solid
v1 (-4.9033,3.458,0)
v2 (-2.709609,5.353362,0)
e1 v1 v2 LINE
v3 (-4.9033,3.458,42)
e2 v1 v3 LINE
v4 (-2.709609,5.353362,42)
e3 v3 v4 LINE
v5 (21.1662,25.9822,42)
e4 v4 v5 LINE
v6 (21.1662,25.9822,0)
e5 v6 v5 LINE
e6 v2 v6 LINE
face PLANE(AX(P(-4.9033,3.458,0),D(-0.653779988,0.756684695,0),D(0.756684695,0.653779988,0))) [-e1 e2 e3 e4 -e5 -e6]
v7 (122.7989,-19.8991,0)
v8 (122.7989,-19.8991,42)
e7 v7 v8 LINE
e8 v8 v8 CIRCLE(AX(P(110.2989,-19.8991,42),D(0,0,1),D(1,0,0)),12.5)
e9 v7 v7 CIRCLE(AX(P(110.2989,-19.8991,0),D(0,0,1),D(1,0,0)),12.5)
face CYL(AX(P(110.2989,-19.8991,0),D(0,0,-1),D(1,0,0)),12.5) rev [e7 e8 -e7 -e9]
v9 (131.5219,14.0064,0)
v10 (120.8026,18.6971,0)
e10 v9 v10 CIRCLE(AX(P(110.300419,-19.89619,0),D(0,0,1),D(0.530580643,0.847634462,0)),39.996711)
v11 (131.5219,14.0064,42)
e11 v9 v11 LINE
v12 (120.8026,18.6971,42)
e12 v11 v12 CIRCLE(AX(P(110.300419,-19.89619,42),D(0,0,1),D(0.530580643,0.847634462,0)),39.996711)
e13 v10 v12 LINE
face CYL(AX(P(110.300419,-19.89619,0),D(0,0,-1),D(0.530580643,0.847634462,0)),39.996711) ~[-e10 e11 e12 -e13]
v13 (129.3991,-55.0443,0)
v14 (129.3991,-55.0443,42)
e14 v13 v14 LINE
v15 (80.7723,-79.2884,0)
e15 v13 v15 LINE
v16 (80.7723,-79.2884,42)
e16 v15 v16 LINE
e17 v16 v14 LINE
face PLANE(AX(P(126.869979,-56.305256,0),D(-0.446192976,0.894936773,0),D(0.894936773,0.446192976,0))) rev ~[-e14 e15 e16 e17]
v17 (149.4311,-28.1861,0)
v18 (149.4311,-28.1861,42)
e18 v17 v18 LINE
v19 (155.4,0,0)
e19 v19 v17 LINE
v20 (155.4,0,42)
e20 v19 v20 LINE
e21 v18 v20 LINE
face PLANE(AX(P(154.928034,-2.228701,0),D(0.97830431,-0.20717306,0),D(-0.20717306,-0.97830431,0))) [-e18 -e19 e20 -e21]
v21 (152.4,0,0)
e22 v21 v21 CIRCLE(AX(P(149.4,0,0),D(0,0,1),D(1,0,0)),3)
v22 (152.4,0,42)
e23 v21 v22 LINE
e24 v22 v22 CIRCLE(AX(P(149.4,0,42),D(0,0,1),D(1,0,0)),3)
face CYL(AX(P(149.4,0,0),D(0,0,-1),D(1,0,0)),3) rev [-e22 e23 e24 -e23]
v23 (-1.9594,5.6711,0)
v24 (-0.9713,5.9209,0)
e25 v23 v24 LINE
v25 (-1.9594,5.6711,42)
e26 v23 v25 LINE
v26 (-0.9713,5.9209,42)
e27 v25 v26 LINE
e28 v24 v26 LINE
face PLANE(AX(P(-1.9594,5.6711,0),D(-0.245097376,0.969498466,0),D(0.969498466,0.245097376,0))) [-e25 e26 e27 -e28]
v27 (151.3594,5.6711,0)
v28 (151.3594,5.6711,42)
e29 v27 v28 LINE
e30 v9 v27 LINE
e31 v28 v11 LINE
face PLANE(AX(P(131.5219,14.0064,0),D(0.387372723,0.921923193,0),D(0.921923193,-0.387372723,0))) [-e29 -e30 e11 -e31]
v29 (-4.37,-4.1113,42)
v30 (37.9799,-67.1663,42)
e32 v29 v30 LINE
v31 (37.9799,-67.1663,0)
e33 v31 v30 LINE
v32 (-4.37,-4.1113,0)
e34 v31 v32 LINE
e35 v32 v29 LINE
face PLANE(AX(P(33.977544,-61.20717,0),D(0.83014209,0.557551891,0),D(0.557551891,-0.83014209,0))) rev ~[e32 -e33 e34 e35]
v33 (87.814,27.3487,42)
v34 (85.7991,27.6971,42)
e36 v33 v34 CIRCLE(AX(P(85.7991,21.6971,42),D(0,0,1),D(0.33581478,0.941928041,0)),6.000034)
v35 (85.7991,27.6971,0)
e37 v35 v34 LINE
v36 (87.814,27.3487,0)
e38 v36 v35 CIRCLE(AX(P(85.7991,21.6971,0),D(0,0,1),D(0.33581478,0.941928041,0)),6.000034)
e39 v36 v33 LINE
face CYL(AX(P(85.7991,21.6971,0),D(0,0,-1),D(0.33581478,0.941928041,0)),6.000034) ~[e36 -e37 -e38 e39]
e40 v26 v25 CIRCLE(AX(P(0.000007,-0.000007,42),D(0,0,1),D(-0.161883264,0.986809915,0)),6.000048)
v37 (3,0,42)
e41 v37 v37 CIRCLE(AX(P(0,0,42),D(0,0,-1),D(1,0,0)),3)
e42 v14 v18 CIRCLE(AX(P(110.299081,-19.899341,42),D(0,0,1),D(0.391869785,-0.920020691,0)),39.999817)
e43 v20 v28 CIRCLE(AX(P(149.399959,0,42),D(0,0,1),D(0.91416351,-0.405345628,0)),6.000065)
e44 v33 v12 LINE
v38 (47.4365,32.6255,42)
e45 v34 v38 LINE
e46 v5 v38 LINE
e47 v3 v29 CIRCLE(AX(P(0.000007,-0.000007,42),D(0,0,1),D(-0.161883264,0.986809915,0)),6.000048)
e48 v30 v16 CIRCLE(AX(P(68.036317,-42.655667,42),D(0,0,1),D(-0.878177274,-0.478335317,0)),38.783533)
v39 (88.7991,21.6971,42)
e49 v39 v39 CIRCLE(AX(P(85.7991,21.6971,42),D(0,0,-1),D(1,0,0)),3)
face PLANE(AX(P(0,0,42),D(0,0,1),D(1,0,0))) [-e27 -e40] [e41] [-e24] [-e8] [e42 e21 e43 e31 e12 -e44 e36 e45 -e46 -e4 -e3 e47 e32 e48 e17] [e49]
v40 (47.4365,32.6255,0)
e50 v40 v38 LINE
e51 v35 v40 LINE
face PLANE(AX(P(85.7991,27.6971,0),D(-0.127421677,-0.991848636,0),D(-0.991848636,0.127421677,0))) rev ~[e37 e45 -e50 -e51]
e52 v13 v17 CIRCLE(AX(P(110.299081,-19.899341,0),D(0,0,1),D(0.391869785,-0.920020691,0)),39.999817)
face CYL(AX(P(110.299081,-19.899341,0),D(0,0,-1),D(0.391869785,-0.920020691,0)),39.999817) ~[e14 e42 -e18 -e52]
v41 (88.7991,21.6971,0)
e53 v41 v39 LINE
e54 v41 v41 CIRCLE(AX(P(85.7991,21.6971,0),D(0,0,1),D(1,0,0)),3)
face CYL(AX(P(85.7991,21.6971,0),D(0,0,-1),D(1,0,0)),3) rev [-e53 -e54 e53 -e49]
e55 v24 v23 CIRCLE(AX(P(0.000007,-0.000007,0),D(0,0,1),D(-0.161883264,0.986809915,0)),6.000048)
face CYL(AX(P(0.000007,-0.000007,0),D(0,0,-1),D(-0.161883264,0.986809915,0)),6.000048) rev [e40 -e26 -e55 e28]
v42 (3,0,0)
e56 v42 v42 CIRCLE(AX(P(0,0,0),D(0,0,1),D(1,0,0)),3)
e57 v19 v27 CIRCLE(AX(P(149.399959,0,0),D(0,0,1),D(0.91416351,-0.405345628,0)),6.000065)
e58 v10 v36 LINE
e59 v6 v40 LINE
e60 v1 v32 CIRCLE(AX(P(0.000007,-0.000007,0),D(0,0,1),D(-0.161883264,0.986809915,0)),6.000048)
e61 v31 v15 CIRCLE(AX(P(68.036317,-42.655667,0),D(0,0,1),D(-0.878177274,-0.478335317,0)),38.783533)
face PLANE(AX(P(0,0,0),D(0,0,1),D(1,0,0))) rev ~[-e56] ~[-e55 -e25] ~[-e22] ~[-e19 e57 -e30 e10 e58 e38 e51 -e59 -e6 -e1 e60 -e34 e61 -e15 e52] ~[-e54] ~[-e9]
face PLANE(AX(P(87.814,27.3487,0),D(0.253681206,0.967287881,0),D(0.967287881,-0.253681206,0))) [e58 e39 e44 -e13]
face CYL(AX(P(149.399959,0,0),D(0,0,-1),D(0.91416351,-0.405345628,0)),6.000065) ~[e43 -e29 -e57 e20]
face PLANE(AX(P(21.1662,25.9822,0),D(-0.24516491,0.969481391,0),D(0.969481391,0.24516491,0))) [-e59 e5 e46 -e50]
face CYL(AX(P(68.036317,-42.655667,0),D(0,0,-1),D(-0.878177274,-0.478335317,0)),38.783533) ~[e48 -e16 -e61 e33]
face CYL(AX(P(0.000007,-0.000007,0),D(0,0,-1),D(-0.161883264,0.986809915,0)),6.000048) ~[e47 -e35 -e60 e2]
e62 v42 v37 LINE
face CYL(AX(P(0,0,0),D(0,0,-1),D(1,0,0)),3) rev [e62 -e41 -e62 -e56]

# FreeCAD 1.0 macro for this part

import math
import FreeCAD as App
import Part
import Sketcher
Q = App.Units.Quantity

doc = App.newDocument("Part")
params = doc.addObject("Spreadsheet::Sheet", "Params")
for row, (alias, value) in enumerate([
    ("sketch1_diameter", "6 mm"),
    ("sketch1_diameter2", "25 mm"),
    ("sketch1_diameter3", "6 mm"),
    ("sketch1_diameter4", "6 mm"),
    ("sketch1_radius", "6 mm"),
    ("pad1_length", "42 mm"),
], start=1):
    params.set(f"A{row}", alias)
    params.set(f"B{row}", "=" + value)
    params.setAlias(f"B{row}", alias)

body = doc.addObject("PartDesign::Body", "Body")

# Sketch on XY plane
sketch1 = body.newObject("Sketcher::SketchObject", "Sketch")
sketch1.AttachmentSupport = (doc.getObject("XY_Plane"), [""])
sketch1.MapMode = "FlatFace"
sketch1.addGeometry([
    Part.ArcOfCircle(Part.Circle(App.Vector(85.7991, 21.6971, 0), App.Vector(0, 0, 1), 6.000034), math.radians(70.377908), math.radians(90)),  # 0
    Part.LineSegment(App.Vector(85.7991, 27.6971, 0), App.Vector(47.4365, 32.6255, 0)),  # 1
    Part.LineSegment(App.Vector(47.4365, 32.6255, 0), App.Vector(21.1662, 25.9822, 0)),  # 2
    Part.LineSegment(App.Vector(21.1662, 25.9822, 0), App.Vector(-2.709609, 5.353362, 0)),  # 3
    Part.LineSegment(App.Vector(-2.709609, 5.353362, 0), App.Vector(-4.9033, 3.458, 0)),  # 4
    Part.ArcOfCircle(Part.Circle(App.Vector(0, 0, 0), App.Vector(0, 0, 1), 6.00004), math.radians(144.807005), math.radians(223.252883)),  # 5
    Part.LineSegment(App.Vector(-4.37, -4.1113, 0), App.Vector(37.9799, -67.1663, 0)),  # 6
    Part.ArcOfCircle(Part.Circle(App.Vector(68.0362, -42.6558, 0), App.Vector(0, 0, 1), 38.783366), math.radians(-140.803229), math.radians(-70.828909)),  # 7
    Part.LineSegment(App.Vector(80.7723, -79.2884, 0), App.Vector(129.3991, -55.0443, 0)),  # 8
    Part.ArcOfCircle(Part.Circle(App.Vector(110.2989, -19.8991, 0), App.Vector(0, 0, 1), 39.999983), math.radians(-61.47745), math.radians(-11.956838)),  # 9
    Part.LineSegment(App.Vector(149.4311, -28.1861, 0), App.Vector(155.4, 0, 0)),  # 10
    Part.ArcOfCircle(Part.Circle(App.Vector(149.4, 0, 0), App.Vector(0, 0, 1), 6.000028), math.radians(0), math.radians(70.939653)),  # 11
    Part.LineSegment(App.Vector(151.3594, 5.6711, 0), App.Vector(131.5219, 14.0064, 0)),  # 12
    Part.ArcOfCircle(Part.Circle(App.Vector(110.300419, -19.89619, 0), App.Vector(0, 0, 1), 39.996711), math.radians(57.955305), math.radians(74.777031)),  # 13
    Part.LineSegment(App.Vector(120.8026, 18.6971, 0), App.Vector(87.814, 27.3487, 0)),  # 14
    Part.Circle(App.Vector(0, 0, 0), App.Vector(0, 0, 1), 3),  # 15
    Part.LineSegment(App.Vector(-0.9713, 5.9209, 0), App.Vector(-1.9594, 5.6711, 0)),  # 16
    Part.ArcOfCircle(Part.Circle(App.Vector(0, 0, 0), App.Vector(0, 0, 1), 6.00004), math.radians(99.316166), math.radians(109.060347)),  # 17
    Part.Circle(App.Vector(110.2989, -19.8991, 0), App.Vector(0, 0, 1), 12.5),  # 18
    Part.Circle(App.Vector(149.4, 0, 0), App.Vector(0, 0, 1), 3),  # 19
    Part.Circle(App.Vector(85.7991, 21.6971, 0), App.Vector(0, 0, 1), 3),  # 20
], False)
sketch1.addConstraint([
    Sketcher.Constraint("Coincident", 0, 2, 1, 1),
    Sketcher.Constraint("Coincident", 1, 2, 2, 1),
    Sketcher.Constraint("Coincident", 2, 2, 3, 1),
    Sketcher.Constraint("Coincident", 3, 2, 4, 1),
    Sketcher.Constraint("Coincident", 4, 2, 5, 1),
    Sketcher.Constraint("Coincident", 5, 2, 6, 1),
    Sketcher.Constraint("Coincident", 6, 2, 7, 1),
    Sketcher.Constraint("Coincident", 7, 2, 8, 1),
    Sketcher.Constraint("Coincident", 8, 2, 9, 1),
    Sketcher.Constraint("Coincident", 9, 2, 10, 1),
    Sketcher.Constraint("Coincident", 10, 2, 11, 1),
    Sketcher.Constraint("Coincident", 11, 2, 12, 1),
    Sketcher.Constraint("Coincident", 12, 2, 13, 1),
    Sketcher.Constraint("Coincident", 13, 2, 14, 1),
    Sketcher.Constraint("Coincident", 14, 2, 0, 1),
    Sketcher.Constraint("Coincident", 16, 1, 17, 1),
    Sketcher.Constraint("Coincident", 17, 2, 16, 2),
    Sketcher.Constraint("Coincident", 5, 3, -1, 1),
    Sketcher.Constraint("Coincident", 15, 3, -1, 1),
    Sketcher.Constraint("Coincident", 17, 3, -1, 1),
    Sketcher.Constraint("Coincident", 18, 3, 9, 3),
    Sketcher.Constraint("Coincident", 19, 3, 11, 3),
    Sketcher.Constraint("Coincident", 20, 3, 0, 3),
    Sketcher.Constraint("PointOnObject", 11, 3, -1),
    Sketcher.Constraint("PointOnObject", 10, 2, -1),
    Sketcher.Constraint("Diameter", 15, Q("6 mm")),
    Sketcher.Constraint("Diameter", 18, Q("25 mm")),
    Sketcher.Constraint("Diameter", 19, Q("6 mm")),
    Sketcher.Constraint("Diameter", 20, Q("6 mm")),
    Sketcher.Constraint("Radius", 0, Q("6 mm")),
    Sketcher.Constraint("Radius", 5, Q("6 mm")),
    Sketcher.Constraint("Radius", 11, Q("6 mm")),
    Sketcher.Constraint("Radius", 17, Q("6 mm")),
    Sketcher.Constraint("Radius", 9, Q("40 mm")),
    Sketcher.Constraint("DistanceY", 13, 2, 0, 3, Q("3 mm")),
    Sketcher.Constraint("DistanceX", -1, 1, 11, 3, Q("149.4 mm")),
    Sketcher.Constraint("Radius", 7, Q("38.7834 mm")),
    Sketcher.Constraint("Radius", 13, Q("39.9967 mm")),
    Sketcher.Constraint("DistanceX", 5, 2, -1, 1, Q("4.37 mm")),
    Sketcher.Constraint("DistanceX", -1, 1, 6, 2, Q("37.98 mm")),
    Sketcher.Constraint("DistanceY", 9, 2, 13, 3, Q("8.29 mm")),
    Sketcher.Constraint("Distance", 4, Q("2.899 mm")),
    Sketcher.Constraint("DistanceX", -1, 1, 0, 3, Q("85.799 mm")),
    Sketcher.Constraint("DistanceY", -1, 1, 0, 3, Q("21.697 mm")),
    Sketcher.Constraint("DistanceX", -1, 1, 9, 3, Q("110.299 mm")),
    Sketcher.Constraint("DistanceY", 9, 3, -1, 1, Q("19.899 mm")),
    Sketcher.Constraint("DistanceX", -1, 1, 0, 2, Q("85.799 mm")),
    Sketcher.Constraint("DistanceY", -1, 1, 4, 2, Q("3.458 mm")),
    Sketcher.Constraint("DistanceX", -1, 1, 8, 2, Q("129.399 mm")),
    Sketcher.Constraint("DistanceX", -1, 1, 9, 2, Q("149.431 mm")),
    Sketcher.Constraint("DistanceY", -1, 1, 11, 2, Q("5.671 mm")),
    Sketcher.Constraint("DistanceX", -1, 1, 12, 2, Q("131.522 mm")),
    Sketcher.Constraint("DistanceX", -1, 1, 14, 2, Q("87.814 mm")),
    Sketcher.Constraint("DistanceY", -1, 1, 16, 1, Q("5.921 mm")),
    Sketcher.Constraint("DistanceY", -1, 1, 17, 2, Q("5.671 mm")),
    Sketcher.Constraint("DistanceX", 7, 3, 0, 3, Q("17.763 mm")),
    Sketcher.Constraint("DistanceY", 7, 3, 0, 3, Q("64.353 mm")),
    Sketcher.Constraint("DistanceX", 2, 2, 0, 2, Q("64.633 mm")),
    Sketcher.Constraint("DistanceY", 2, 2, 0, 2, Q("1.715 mm")),
    Sketcher.Constraint("DistanceX", 3, 2, 1, 2, Q("50.146 mm")),
    Sketcher.Constraint("DistanceX", 7, 3, 7, 2, Q("12.736 mm")),
    Sketcher.Constraint("DistanceX", 13, 3, 11, 2, Q("41.059 mm")),
    Sketcher.Constraint("Distance", 1, Q("38.6779 mm")),
    Sketcher.Constraint("Distance", 2, Q("27.0973 mm")),
])
sketch1.setExpression("Constraints[25]", "Params.sketch1_diameter")
sketch1.setExpression("Constraints[26]", "Params.sketch1_diameter2")
sketch1.setExpression("Constraints[27]", "Params.sketch1_diameter3")
sketch1.setExpression("Constraints[28]", "Params.sketch1_diameter4")
sketch1.setExpression("Constraints[29]", "Params.sketch1_radius")
pad1 = body.newObject("PartDesign::Pad", "Pad")
pad1.Profile = sketch1
pad1.setExpression("Length", "Params.pad1_length")

doc.recompute()
